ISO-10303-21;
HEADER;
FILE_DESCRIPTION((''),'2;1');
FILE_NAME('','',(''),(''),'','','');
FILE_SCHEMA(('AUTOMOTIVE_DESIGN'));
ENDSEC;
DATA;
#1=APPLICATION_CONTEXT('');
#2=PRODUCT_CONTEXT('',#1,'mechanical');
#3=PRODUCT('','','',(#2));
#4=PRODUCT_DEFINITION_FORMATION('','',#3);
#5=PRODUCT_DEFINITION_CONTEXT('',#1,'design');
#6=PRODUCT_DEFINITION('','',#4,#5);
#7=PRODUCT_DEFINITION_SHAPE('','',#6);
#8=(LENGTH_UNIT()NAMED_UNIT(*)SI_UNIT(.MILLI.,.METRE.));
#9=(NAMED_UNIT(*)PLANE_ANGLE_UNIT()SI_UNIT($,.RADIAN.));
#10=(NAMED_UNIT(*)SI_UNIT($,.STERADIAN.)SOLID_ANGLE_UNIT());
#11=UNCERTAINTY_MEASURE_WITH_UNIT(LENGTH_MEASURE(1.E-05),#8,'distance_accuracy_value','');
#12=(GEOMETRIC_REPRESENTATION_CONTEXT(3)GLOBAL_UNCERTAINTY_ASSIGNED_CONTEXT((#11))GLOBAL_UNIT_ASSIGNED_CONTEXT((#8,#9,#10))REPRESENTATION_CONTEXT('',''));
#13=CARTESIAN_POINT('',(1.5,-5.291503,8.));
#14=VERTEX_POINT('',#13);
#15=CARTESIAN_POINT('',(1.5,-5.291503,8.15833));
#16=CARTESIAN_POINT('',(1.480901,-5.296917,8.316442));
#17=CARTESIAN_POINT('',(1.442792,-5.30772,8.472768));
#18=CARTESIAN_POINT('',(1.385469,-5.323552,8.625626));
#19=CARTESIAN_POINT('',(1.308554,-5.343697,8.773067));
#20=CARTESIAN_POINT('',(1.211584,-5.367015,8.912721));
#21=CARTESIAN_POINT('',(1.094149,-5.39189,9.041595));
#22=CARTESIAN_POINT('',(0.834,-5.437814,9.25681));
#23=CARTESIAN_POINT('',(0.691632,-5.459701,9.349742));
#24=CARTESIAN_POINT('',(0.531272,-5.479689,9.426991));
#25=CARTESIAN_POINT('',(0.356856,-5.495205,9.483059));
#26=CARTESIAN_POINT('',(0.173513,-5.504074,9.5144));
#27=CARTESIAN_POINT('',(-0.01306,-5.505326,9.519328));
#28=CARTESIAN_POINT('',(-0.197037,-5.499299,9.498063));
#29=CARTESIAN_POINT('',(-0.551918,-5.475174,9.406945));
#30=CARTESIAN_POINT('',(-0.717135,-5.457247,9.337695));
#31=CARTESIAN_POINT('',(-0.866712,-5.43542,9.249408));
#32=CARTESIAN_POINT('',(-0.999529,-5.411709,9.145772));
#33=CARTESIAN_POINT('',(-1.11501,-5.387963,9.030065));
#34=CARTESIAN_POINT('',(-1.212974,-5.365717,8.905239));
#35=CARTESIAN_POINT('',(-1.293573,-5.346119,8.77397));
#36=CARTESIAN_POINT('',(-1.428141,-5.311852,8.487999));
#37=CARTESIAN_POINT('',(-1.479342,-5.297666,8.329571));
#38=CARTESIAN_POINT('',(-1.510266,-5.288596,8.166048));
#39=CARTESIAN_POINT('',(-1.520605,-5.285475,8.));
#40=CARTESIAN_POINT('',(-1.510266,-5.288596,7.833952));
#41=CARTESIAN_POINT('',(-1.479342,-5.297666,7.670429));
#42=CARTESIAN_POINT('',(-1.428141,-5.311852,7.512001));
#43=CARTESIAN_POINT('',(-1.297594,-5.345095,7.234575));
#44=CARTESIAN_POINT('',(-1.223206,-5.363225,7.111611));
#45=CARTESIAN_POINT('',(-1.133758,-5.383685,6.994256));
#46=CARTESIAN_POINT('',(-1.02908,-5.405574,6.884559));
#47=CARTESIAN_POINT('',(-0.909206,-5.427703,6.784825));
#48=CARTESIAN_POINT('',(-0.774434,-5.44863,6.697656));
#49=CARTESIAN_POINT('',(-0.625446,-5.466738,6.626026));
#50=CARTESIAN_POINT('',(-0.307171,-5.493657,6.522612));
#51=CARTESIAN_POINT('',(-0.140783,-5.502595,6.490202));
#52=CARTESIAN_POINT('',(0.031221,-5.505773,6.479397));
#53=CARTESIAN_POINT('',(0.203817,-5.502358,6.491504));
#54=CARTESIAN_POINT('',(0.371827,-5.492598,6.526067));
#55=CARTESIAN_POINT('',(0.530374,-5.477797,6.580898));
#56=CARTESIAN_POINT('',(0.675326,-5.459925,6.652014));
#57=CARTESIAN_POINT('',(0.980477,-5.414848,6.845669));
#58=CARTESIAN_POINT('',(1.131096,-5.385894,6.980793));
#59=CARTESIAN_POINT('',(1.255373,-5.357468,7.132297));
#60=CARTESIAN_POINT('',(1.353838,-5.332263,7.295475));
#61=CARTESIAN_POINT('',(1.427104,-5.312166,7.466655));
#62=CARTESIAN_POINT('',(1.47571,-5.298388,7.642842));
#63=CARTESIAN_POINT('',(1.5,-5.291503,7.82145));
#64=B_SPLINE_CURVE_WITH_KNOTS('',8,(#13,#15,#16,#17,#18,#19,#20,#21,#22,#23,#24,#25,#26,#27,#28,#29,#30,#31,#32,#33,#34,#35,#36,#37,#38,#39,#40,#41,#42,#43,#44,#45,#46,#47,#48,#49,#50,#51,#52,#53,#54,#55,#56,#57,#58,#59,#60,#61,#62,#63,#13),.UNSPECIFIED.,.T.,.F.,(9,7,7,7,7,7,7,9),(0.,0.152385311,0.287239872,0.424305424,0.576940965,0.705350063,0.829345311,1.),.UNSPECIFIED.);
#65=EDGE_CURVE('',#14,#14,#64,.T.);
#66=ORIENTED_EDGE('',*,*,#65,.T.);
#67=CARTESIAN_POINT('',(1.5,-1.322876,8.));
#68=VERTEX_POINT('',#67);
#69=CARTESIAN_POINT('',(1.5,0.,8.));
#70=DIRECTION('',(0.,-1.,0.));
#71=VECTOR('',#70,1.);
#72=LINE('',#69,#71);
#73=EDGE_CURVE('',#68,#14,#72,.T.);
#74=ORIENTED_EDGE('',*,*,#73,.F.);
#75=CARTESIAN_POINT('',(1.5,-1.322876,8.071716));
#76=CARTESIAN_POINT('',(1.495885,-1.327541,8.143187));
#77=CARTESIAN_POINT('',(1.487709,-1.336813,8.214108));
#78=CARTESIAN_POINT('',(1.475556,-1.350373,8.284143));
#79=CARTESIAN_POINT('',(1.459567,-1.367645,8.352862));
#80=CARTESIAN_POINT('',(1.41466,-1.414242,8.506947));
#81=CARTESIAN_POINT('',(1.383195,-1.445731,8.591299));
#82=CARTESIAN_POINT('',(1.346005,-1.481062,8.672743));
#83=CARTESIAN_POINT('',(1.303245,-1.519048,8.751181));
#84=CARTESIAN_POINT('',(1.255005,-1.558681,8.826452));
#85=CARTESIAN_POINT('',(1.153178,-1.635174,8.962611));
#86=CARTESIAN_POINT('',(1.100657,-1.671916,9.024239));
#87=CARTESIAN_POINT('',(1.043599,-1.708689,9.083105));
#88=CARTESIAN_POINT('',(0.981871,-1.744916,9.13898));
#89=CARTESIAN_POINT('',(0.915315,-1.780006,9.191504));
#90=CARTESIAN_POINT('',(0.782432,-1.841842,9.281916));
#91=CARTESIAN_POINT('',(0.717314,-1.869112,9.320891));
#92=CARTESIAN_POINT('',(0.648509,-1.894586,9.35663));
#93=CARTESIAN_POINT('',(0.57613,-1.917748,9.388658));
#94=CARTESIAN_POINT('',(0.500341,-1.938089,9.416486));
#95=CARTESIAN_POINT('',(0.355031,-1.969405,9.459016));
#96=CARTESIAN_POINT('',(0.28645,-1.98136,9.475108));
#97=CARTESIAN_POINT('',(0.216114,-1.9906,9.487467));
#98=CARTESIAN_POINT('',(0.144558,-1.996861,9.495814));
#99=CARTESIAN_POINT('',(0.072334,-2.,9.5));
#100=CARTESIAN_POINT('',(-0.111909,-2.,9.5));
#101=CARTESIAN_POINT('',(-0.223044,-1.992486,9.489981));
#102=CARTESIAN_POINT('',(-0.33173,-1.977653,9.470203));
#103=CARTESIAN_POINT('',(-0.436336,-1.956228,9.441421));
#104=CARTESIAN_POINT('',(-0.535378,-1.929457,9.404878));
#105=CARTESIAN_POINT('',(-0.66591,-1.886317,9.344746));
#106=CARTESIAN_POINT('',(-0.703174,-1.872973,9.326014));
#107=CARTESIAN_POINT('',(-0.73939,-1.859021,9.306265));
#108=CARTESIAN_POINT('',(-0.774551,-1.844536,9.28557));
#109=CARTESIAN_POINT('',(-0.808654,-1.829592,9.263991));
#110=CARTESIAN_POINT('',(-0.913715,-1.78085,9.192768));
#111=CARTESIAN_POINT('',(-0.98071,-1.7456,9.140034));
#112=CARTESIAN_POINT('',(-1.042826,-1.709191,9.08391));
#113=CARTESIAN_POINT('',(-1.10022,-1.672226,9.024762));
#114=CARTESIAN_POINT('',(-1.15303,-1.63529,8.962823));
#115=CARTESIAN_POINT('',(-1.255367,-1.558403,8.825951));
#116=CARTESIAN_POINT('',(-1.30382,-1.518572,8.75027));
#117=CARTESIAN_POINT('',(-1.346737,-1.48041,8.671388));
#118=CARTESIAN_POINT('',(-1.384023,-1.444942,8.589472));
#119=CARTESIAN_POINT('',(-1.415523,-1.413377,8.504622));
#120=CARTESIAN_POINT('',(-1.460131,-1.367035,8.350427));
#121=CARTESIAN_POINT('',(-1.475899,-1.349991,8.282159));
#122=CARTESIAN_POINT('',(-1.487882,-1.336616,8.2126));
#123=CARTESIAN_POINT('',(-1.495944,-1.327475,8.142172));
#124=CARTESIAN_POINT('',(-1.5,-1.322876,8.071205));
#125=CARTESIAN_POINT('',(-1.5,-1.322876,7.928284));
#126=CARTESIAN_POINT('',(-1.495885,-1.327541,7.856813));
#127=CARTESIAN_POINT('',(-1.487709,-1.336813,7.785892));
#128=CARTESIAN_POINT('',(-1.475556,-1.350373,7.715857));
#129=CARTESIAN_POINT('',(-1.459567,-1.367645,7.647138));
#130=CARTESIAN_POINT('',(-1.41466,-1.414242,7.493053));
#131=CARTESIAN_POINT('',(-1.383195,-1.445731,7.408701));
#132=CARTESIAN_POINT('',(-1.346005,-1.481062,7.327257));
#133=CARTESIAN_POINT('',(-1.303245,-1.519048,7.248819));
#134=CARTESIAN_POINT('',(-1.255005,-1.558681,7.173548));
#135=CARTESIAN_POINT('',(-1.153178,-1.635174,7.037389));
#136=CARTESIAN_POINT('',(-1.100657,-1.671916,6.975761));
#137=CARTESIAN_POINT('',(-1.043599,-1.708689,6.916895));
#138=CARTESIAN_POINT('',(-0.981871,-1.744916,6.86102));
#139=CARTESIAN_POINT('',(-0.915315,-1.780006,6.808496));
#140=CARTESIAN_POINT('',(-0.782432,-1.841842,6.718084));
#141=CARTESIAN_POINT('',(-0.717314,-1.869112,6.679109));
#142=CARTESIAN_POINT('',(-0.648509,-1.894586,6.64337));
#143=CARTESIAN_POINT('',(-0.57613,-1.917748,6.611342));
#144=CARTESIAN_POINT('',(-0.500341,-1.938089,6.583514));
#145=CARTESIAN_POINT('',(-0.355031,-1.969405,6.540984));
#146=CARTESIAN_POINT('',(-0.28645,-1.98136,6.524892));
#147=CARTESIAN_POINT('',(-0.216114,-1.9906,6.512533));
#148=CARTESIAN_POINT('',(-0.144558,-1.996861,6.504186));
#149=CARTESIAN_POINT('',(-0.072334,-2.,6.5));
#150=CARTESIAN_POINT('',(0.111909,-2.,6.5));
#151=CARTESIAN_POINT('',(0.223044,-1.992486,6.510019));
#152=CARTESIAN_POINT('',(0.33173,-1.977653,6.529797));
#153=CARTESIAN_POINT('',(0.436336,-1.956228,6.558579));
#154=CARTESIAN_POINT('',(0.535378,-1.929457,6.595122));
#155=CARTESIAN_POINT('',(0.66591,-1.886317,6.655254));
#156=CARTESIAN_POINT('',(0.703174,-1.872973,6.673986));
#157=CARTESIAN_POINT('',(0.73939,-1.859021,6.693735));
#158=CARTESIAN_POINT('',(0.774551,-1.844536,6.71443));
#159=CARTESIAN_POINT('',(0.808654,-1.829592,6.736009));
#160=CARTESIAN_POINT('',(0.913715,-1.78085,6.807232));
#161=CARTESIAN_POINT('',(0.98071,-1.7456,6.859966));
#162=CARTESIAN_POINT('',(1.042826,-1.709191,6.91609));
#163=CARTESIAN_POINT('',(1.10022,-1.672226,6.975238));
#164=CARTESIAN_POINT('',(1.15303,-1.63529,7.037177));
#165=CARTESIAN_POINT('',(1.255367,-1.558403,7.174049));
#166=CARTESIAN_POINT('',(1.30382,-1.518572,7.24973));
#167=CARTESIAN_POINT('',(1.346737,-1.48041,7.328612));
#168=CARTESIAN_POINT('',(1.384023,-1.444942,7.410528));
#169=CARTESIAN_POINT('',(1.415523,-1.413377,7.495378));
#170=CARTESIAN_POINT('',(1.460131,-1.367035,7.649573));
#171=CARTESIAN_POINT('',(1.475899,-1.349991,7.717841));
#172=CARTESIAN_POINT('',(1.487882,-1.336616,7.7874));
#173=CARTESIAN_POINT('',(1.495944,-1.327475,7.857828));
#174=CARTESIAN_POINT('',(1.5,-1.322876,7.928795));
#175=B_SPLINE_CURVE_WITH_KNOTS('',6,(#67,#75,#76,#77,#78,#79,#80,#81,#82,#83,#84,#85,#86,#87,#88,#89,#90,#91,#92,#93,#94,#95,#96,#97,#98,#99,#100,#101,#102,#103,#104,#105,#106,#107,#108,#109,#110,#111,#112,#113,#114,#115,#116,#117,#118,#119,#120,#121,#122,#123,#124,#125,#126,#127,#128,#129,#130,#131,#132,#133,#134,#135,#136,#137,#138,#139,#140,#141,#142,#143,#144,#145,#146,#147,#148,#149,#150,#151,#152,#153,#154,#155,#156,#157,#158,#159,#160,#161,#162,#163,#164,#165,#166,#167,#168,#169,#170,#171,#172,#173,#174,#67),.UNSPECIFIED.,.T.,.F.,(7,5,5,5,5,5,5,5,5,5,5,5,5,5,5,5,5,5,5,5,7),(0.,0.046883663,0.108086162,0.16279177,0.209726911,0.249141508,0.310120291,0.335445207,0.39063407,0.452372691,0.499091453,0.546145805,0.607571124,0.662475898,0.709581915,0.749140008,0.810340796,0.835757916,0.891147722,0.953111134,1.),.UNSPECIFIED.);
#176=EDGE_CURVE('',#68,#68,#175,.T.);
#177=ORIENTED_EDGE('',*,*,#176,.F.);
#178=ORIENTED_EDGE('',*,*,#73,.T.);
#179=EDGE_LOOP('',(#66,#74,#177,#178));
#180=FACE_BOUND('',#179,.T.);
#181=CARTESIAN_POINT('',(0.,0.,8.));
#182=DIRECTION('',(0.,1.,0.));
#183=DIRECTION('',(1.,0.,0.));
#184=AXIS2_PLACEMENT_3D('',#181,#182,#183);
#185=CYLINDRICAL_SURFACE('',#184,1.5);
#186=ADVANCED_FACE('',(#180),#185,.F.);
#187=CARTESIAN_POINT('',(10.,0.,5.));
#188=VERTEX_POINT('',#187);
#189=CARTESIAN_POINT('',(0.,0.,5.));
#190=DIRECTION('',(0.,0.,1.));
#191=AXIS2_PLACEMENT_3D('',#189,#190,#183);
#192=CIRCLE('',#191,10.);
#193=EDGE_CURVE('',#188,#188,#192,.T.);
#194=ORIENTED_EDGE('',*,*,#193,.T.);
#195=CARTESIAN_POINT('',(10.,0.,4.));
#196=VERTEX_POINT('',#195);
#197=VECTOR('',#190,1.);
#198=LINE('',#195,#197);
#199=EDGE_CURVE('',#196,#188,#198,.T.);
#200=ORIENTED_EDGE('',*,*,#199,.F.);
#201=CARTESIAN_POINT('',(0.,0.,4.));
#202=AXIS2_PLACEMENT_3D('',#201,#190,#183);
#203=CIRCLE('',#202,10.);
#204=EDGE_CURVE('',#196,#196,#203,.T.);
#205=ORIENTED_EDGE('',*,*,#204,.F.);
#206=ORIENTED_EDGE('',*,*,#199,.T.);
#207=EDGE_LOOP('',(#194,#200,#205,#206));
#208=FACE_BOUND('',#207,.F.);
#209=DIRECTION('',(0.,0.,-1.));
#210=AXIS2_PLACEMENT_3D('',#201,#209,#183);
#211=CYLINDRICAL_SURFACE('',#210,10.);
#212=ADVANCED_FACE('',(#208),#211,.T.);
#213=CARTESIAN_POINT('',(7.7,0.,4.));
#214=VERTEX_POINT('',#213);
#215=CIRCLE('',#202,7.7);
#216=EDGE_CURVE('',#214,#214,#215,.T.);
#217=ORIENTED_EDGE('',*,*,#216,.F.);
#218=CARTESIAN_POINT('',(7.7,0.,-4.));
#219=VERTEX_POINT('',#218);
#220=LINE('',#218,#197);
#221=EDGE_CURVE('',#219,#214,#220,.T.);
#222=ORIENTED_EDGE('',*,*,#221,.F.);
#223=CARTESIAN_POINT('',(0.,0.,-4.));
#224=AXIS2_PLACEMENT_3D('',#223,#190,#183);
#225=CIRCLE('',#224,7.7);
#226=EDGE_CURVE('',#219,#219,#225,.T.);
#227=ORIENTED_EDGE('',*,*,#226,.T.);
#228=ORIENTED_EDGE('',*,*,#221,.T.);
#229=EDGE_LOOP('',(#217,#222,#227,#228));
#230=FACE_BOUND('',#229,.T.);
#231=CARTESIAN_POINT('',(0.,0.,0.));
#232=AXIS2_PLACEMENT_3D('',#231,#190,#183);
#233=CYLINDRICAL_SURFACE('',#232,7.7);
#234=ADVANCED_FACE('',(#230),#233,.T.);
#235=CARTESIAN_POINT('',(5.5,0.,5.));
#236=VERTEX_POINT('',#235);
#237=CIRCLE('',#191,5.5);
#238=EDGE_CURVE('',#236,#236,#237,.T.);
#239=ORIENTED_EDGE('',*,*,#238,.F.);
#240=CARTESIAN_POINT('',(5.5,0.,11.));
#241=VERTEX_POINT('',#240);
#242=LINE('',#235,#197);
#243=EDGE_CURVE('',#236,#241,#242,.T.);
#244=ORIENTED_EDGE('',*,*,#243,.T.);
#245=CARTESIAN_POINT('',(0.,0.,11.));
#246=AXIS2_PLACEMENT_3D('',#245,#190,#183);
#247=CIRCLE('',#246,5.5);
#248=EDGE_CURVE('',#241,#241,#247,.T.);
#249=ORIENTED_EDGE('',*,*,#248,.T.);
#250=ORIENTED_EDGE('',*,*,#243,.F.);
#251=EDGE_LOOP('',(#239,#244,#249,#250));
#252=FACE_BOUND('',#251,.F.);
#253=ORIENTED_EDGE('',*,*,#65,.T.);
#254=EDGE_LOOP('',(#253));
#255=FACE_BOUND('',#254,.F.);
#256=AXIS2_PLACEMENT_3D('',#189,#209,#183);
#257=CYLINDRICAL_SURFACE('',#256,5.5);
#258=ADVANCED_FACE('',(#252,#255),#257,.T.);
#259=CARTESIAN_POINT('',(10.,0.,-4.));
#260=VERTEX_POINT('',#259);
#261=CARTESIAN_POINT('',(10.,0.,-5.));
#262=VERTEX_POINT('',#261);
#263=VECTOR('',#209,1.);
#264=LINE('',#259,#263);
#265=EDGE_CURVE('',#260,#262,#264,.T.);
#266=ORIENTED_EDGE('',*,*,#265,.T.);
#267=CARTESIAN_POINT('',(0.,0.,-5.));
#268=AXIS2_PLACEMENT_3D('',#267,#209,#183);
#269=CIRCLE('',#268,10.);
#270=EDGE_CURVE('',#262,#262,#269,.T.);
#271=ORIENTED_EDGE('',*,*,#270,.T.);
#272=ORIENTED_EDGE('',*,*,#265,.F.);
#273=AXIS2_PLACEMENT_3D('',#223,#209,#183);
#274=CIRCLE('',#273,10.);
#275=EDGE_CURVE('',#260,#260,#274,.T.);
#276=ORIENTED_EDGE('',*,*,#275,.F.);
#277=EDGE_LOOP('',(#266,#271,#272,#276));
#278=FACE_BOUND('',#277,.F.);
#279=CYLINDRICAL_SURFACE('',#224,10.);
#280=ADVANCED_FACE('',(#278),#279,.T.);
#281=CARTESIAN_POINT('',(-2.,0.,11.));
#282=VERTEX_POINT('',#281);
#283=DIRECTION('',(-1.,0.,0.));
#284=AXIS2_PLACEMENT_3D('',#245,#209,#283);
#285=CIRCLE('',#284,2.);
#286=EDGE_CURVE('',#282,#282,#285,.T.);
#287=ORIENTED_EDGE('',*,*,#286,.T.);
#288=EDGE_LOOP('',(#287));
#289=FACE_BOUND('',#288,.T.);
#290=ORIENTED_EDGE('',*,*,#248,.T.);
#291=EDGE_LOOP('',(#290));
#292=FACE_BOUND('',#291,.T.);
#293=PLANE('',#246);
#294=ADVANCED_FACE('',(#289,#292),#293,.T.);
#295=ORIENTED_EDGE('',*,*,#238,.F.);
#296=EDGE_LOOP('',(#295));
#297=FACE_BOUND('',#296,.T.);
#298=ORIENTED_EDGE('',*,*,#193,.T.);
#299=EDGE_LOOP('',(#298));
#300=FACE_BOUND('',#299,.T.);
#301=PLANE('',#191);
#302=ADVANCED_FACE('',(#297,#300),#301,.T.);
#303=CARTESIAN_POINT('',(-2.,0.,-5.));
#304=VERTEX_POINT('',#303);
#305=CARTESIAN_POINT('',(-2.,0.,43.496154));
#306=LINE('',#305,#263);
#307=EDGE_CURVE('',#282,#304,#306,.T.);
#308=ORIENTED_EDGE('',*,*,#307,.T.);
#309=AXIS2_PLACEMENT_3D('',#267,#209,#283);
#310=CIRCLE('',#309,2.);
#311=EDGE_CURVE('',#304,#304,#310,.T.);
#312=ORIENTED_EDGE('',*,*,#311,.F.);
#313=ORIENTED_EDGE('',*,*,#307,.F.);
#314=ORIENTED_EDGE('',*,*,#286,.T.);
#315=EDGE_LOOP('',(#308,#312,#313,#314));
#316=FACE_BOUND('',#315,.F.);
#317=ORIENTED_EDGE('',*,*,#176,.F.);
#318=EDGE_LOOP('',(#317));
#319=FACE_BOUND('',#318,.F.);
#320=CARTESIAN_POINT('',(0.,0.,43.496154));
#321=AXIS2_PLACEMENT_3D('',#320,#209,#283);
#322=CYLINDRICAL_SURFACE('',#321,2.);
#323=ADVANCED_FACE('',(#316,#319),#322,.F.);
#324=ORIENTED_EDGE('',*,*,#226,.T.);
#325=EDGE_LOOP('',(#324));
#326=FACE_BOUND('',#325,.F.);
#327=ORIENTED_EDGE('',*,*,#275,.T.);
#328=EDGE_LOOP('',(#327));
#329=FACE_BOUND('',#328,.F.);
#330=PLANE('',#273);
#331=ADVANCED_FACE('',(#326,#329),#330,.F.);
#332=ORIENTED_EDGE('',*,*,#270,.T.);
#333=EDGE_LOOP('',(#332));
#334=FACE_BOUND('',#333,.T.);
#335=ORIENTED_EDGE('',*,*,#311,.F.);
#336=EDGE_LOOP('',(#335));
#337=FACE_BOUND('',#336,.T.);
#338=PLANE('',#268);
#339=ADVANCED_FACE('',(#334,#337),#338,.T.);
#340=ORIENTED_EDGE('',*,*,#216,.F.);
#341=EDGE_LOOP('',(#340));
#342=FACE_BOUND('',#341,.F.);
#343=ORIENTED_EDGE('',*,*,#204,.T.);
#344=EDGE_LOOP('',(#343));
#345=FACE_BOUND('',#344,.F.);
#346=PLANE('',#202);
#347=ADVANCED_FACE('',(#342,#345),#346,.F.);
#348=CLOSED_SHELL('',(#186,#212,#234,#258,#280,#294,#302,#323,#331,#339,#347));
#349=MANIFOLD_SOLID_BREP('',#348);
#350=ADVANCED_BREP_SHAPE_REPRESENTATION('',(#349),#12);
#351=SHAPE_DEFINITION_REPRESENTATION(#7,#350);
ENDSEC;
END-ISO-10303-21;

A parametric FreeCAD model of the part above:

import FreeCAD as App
import Part
import Sketcher
from FreeCAD import Vector
Q = App.Units.Quantity

doc = App.newDocument("Part")
body = doc.addObject("PartDesign::Body", "Body")

# Sketch on XY plane
sketch1 = body.newObject("Sketcher::SketchObject", "Sketch")
sketch1.AttachmentSupport = (doc.getObject("XY_Plane"), [""])
sketch1.MapMode = "FlatFace"
sketch1.addGeometry(Part.Circle(Vector(0, 0, 0), Vector(0, 0, 1), 8), False)
sketch1.addConstraint([
    Sketcher.Constraint("Coincident", 0, 3, -1, 1),
    Sketcher.Constraint("Diameter", 0, Q("15.4 mm")),
])
pad1 = body.newObject("PartDesign::Pad", "Pad")
pad1.Profile = sketch1
pad1.Length = 8
pad1.Midplane = True

# Sketch on XY plane
sketch2 = body.newObject("Sketcher::SketchObject", "Sketch001")
sketch2.AttachmentSupport = (doc.getObject("XY_Plane"), [""])
sketch2.MapMode = "FlatFace"
sketch2.AttachmentOffset = App.Placement(Vector(0, 0, 4), App.Rotation())
sketch2.addGeometry(Part.Circle(Vector(0, 0, 0), Vector(0, 0, 1), 10), False)
sketch2.addConstraint([
    Sketcher.Constraint("Coincident", 0, 3, -1, 1),
    Sketcher.Constraint("Diameter", 0, Q("20 mm")),
])
pad2 = body.newObject("PartDesign::Pad", "Pad001")
pad2.Profile = sketch2
pad2.Length = 1

# Sketch on XY plane
sketch3 = body.newObject("Sketcher::SketchObject", "Sketch002")
sketch3.AttachmentSupport = (doc.getObject("XY_Plane"), [""])
sketch3.MapMode = "FlatFace"
sketch3.AttachmentOffset = App.Placement(Vector(0, 0, -4), App.Rotation())
sketch3.addGeometry(Part.Circle(Vector(0, 0, 0), Vector(0, 0, 1), 10), False)
sketch3.addConstraint([
    Sketcher.Constraint("Coincident", 0, 3, -1, 1),
    Sketcher.Constraint("Diameter", 0, Q("20 mm")),
])
pad3 = body.newObject("PartDesign::Pad", "Pad002")
pad3.Profile = sketch3
pad3.Length = 1
pad3.Reversed = True

# Sketch on XY plane
sketch4 = body.newObject("Sketcher::SketchObject", "Sketch003")
sketch4.AttachmentSupport = (doc.getObject("XY_Plane"), [""])
sketch4.MapMode = "FlatFace"
sketch4.AttachmentOffset = App.Placement(Vector(0, 0, 5), App.Rotation())
sketch4.addGeometry(Part.Circle(Vector(0, 0, 0), Vector(0, 0, 1), 6), False)
sketch4.addConstraint([
    Sketcher.Constraint("Coincident", 0, 3, -1, 1),
    Sketcher.Constraint("Diameter", 0, Q("11 mm")),
])
pad4 = body.newObject("PartDesign::Pad", "Pad003")
pad4.Profile = sketch4
pad4.Length = 6

# Sketch on XY plane
sketch5 = body.newObject("Sketcher::SketchObject", "Sketch004")
sketch5.AttachmentSupport = (doc.getObject("XY_Plane"), [""])
sketch5.MapMode = "FlatFace"
sketch5.AttachmentOffset = App.Placement(Vector(0, 0, 11), App.Rotation())
sketch5.addGeometry(Part.Circle(Vector(0, 0, 0), Vector(0, 0, 1), 2), False)
sketch5.addConstraint([
    Sketcher.Constraint("Coincident", 0, 3, -1, 1),
    Sketcher.Constraint("Diameter", 0, Q("4 mm")),
])
doc.recompute()
hole = body.newObject("PartDesign::Hole", "Hole")
hole.Profile = sketch5
hole.ThreadType = "None"
hole.Diameter = 4
hole.DepthType = "ThroughAll"

# Sketch on XZ plane
sketch6 = body.newObject("Sketcher::SketchObject", "Sketch005")
sketch6.AttachmentSupport = (doc.getObject("XZ_Plane"), [""])
sketch6.MapMode = "FlatFace"
sketch6.addGeometry(Part.Circle(Vector(0, 8, 0), Vector(0, 0, 1), 1.5), False)
sketch6.addConstraint([
    Sketcher.Constraint("PointOnObject", 0, 3, -2),
    Sketcher.Constraint("Diameter", 0, Q("3 mm")),
    Sketcher.Constraint("DistanceY", -1, 1, 0, 3, Q("8 mm")),
])
pocket1 = body.newObject("PartDesign::Pocket", "Pocket")
pocket1.Profile = sketch6
pocket1.Length = 25
pocket1.Reversed = True

doc.recompute()
